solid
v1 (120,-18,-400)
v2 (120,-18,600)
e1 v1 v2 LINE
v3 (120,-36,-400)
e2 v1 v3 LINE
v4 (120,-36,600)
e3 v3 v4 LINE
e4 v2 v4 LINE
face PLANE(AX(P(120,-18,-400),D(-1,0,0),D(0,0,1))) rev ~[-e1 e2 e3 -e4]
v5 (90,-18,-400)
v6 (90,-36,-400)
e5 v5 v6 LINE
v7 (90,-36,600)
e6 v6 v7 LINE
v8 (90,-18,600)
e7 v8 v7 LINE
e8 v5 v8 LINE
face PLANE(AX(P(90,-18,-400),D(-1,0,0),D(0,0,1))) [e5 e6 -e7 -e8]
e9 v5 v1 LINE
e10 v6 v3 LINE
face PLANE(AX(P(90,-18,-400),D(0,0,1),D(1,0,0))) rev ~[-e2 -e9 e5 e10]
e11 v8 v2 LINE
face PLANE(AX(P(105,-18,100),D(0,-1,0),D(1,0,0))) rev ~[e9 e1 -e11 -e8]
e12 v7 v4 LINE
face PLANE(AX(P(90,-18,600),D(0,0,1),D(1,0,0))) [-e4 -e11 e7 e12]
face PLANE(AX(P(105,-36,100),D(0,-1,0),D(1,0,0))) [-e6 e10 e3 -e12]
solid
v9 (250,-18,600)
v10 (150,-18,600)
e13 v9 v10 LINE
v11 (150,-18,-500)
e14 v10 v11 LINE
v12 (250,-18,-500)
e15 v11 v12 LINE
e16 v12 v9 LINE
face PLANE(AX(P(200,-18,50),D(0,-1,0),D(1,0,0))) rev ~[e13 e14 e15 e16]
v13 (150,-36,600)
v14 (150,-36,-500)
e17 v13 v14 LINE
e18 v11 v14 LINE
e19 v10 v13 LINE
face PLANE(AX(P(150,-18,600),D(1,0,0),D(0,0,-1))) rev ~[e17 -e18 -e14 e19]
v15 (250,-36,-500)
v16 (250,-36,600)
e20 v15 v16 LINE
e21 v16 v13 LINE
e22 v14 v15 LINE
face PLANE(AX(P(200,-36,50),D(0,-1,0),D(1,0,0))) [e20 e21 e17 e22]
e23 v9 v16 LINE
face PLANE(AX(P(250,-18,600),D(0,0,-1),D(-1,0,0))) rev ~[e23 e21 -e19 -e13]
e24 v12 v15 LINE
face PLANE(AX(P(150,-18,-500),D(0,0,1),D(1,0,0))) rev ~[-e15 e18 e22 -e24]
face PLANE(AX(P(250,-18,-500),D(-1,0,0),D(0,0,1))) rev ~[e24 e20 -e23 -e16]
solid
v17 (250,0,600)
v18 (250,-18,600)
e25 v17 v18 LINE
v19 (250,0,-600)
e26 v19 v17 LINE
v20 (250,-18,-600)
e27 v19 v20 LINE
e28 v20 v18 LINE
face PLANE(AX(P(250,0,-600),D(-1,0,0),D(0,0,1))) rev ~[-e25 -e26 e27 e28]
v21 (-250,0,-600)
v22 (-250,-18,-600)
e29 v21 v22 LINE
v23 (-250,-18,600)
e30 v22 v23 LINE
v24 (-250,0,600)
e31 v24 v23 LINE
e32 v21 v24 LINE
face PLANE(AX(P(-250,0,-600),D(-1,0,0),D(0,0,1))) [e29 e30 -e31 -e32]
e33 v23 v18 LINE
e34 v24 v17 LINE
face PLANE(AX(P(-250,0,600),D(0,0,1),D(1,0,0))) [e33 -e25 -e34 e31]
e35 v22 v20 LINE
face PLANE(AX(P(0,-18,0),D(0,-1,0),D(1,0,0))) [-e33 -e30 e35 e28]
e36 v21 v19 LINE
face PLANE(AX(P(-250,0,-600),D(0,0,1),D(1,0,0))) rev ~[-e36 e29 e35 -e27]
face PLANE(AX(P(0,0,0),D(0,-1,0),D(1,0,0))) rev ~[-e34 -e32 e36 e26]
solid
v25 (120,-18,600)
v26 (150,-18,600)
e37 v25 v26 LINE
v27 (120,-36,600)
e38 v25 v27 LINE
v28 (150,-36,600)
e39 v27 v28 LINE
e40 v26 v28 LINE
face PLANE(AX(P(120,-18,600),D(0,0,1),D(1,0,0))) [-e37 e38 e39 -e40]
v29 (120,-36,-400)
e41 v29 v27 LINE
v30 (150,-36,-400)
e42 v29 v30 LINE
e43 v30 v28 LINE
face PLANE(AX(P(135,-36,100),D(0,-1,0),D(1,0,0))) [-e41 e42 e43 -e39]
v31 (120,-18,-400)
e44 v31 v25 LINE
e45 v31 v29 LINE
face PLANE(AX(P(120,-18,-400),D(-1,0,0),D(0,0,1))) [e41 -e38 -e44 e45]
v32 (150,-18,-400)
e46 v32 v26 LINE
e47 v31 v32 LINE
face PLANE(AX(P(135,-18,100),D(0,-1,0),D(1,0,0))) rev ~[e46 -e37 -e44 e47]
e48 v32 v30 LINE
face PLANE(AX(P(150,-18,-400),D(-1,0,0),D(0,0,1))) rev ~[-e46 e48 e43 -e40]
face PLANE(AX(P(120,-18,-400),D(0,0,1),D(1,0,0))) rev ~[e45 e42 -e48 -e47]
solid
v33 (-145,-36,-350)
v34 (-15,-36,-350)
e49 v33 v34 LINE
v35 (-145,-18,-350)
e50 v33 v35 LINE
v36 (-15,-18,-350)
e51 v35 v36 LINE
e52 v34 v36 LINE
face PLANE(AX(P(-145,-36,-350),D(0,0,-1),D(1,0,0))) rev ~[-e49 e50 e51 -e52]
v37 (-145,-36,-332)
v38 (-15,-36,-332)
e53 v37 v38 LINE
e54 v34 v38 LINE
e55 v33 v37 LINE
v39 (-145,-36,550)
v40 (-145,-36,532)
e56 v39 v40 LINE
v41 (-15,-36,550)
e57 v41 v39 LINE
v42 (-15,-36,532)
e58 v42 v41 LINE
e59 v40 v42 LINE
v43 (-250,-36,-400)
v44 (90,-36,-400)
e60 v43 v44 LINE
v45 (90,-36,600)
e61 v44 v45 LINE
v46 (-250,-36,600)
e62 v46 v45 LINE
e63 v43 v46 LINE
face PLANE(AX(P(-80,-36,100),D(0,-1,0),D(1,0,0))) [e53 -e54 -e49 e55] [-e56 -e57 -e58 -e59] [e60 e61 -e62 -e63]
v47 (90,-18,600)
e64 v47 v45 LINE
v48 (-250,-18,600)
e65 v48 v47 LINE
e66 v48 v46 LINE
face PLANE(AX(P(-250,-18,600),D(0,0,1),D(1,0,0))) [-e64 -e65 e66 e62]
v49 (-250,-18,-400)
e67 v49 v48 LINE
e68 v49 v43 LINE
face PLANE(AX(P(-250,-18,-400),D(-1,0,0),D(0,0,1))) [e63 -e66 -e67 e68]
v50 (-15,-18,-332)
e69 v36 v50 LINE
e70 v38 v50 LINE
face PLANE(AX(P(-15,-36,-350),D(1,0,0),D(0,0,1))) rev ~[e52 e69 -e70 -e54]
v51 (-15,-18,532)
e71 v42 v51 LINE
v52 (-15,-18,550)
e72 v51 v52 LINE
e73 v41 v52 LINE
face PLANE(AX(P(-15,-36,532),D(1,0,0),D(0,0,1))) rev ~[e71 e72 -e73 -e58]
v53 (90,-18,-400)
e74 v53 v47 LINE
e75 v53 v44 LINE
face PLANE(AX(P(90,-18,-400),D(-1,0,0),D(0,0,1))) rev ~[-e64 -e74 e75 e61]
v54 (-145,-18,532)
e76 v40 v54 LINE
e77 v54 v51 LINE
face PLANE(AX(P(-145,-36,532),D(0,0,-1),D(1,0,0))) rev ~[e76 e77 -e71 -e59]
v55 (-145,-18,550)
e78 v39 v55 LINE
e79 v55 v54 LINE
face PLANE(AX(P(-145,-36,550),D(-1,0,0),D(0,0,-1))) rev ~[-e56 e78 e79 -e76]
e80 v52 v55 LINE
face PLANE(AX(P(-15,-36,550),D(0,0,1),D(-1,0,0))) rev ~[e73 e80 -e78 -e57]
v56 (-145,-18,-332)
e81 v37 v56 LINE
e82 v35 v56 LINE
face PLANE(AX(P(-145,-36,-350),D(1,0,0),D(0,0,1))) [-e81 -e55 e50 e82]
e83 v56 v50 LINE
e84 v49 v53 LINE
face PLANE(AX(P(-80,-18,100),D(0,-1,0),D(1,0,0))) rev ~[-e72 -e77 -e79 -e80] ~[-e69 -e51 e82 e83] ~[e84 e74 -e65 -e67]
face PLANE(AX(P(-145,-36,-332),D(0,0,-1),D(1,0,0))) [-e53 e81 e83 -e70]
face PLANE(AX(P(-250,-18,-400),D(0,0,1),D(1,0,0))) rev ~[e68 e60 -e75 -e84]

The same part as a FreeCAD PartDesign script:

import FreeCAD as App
import Part
import Sketcher

V = App.Vector
Q = App.Units.Quantity

doc = App.newDocument("Part")
body = doc.addObject("PartDesign::Body", "Body")

# Sketch on XZ plane
sketch1 = body.newObject("Sketcher::SketchObject", "Sketch")
sketch1.AttachmentSupport = (doc.getObject("XZ_Plane"), [""])
sketch1.MapMode = "FlatFace"
sketch1.addGeometry([
    Part.LineSegment(V(-250, 600, 0), V(-250, -600, 0)),
    Part.LineSegment(V(-250, -600, 0), V(250, -600, 0)),
    Part.LineSegment(V(250, -600, 0), V(250, 600, 0)),
    Part.LineSegment(V(250, 600, 0), V(-250, 600, 0)),
], False)
sketch1.addConstraint([
    Sketcher.Constraint("Coincident", 0, 2, 1, 1),
    Sketcher.Constraint("Coincident", 1, 2, 2, 1),
    Sketcher.Constraint("Coincident", 2, 2, 3, 1),
    Sketcher.Constraint("Coincident", 3, 2, 0, 1),
    Sketcher.Constraint("Vertical", 0),
    Sketcher.Constraint("Horizontal", 1),
    Sketcher.Constraint("Vertical", 2),
    Sketcher.Constraint("Horizontal", 3),
    Sketcher.Constraint("Symmetric", 0, 2, 2, 2, -1, 1),
    Sketcher.Constraint("DistanceX", 1, 1, 1, 2, Q("500 mm")),
    Sketcher.Constraint("DistanceY", 0, 2, 0, 1, Q("1200 mm")),
])
pad1 = body.newObject("PartDesign::Pad", "Pad")
pad1.Profile = sketch1
pad1.Length = 18
body2 = doc.addObject("PartDesign::Body", "Body001")

# Sketch on XZ plane
sketch2 = body2.newObject("Sketcher::SketchObject", "Sketch001")
sketch2.AttachmentSupport = (doc.getObject("XZ_Plane001"), [""])
sketch2.MapMode = "FlatFace"
sketch2.AttachmentOffset = App.Placement(V(0, 0, 18), App.Rotation())
sketch2.addGeometry([
    Part.LineSegment(V(-250, 600, 0), V(-250, -400, 0)),
    Part.LineSegment(V(-250, -400, 0), V(90, -400, 0)),
    Part.LineSegment(V(90, -400, 0), V(90, 600, 0)),
    Part.LineSegment(V(90, 600, 0), V(-250, 600, 0)),
], False)
sketch2.addConstraint([
    Sketcher.Constraint("Coincident", 0, 2, 1, 1),
    Sketcher.Constraint("Coincident", 1, 2, 2, 1),
    Sketcher.Constraint("Coincident", 2, 2, 3, 1),
    Sketcher.Constraint("Coincident", 3, 2, 0, 1),
    Sketcher.Constraint("Vertical", 0),
    Sketcher.Constraint("Horizontal", 1),
    Sketcher.Constraint("Vertical", 2),
    Sketcher.Constraint("Horizontal", 3),
    Sketcher.Constraint("DistanceX", 1, 1, 1, 2, Q("340 mm")),
    Sketcher.Constraint("DistanceY", 0, 2, 0, 1, Q("1000 mm")),
    Sketcher.Constraint("DistanceX", 0, 2, -1, 1, Q("250 mm")),
    Sketcher.Constraint("DistanceY", 0, 2, -1, 1, Q("400 mm")),
])
pad2 = body2.newObject("PartDesign::Pad", "Pad001")
pad2.Profile = sketch2
pad2.Length = 18

# Sketch on XZ plane
sketch3 = body2.newObject("Sketcher::SketchObject", "Sketch002")
sketch3.AttachmentSupport = (doc.getObject("XZ_Plane001"), [""])
sketch3.MapMode = "FlatFace"
sketch3.AttachmentOffset = App.Placement(V(0, 0, 36), App.Rotation())
sketch3.addGeometry([
    Part.LineSegment(V(-145, 550, 0), V(-145, 532, 0)),  # 0
    Part.LineSegment(V(-145, 532, 0), V(-15, 532, 0)),  # 1
    Part.LineSegment(V(-15, 532, 0), V(-15, 550, 0)),  # 2
    Part.LineSegment(V(-15, 550, 0), V(-145, 550, 0)),  # 3
    Part.LineSegment(V(-145, -332, 0), V(-145, -350, 0)),  # 4
    Part.LineSegment(V(-145, -350, 0), V(-15, -350, 0)),  # 5
    Part.LineSegment(V(-15, -350, 0), V(-15, -332, 0)),  # 6
    Part.LineSegment(V(-15, -332, 0), V(-145, -332, 0)),  # 7
], False)
sketch3.addConstraint([
    Sketcher.Constraint("Coincident", 0, 2, 1, 1),
    Sketcher.Constraint("Coincident", 1, 2, 2, 1),
    Sketcher.Constraint("Coincident", 2, 2, 3, 1),
    Sketcher.Constraint("Coincident", 3, 2, 0, 1),
    Sketcher.Constraint("Coincident", 4, 2, 5, 1),
    Sketcher.Constraint("Coincident", 5, 2, 6, 1),
    Sketcher.Constraint("Coincident", 6, 2, 7, 1),
    Sketcher.Constraint("Coincident", 7, 2, 4, 1),
    Sketcher.Constraint("Vertical", 0),
    Sketcher.Constraint("Horizontal", 1),
    Sketcher.Constraint("Vertical", 2),
    Sketcher.Constraint("Horizontal", 3),
    Sketcher.Constraint("Vertical", 4),
    Sketcher.Constraint("Horizontal", 5),
    Sketcher.Constraint("Vertical", 6),
    Sketcher.Constraint("Horizontal", 7),
    Sketcher.Constraint("Vertical", 3, 2, 4, 2),
    Sketcher.Constraint("Vertical", 2, 2, 5, 2),
    Sketcher.Constraint("Equal", 2, 4),
    Sketcher.Constraint("DistanceX", 1, 1, 1, 2, Q("130 mm")),
    Sketcher.Constraint("DistanceY", 0, 2, 0, 1, Q("18 mm")),
    Sketcher.Constraint("DistanceX", 0, 2, -1, 1, Q("145 mm")),
    Sketcher.Constraint("DistanceY", -1, 1, 0, 2, Q("532 mm")),
    Sketcher.Constraint("DistanceY", 4, 2, -1, 1, Q("350 mm")),
])
pocket1 = body2.newObject("PartDesign::Pocket", "Pocket")
pocket1.Profile = sketch3
pocket1.Type = "ThroughAll"
body3 = doc.addObject("PartDesign::Body", "Body002")

# Sketch on XZ plane
sketch4 = body3.newObject("Sketcher::SketchObject", "Sketch003")
sketch4.AttachmentSupport = (doc.getObject("XZ_Plane002"), [""])
sketch4.MapMode = "FlatFace"
sketch4.AttachmentOffset = App.Placement(V(0, 0, 18), App.Rotation())
sketch4.addGeometry([
    Part.LineSegment(V(90, 600, 0), V(90, -400, 0)),
    Part.LineSegment(V(90, -400, 0), V(120, -400, 0)),
    Part.LineSegment(V(120, -400, 0), V(120, 600, 0)),
    Part.LineSegment(V(120, 600, 0), V(90, 600, 0)),
], False)
sketch4.addConstraint([
    Sketcher.Constraint("Coincident", 0, 2, 1, 1),
    Sketcher.Constraint("Coincident", 1, 2, 2, 1),
    Sketcher.Constraint("Coincident", 2, 2, 3, 1),
    Sketcher.Constraint("Coincident", 3, 2, 0, 1),
    Sketcher.Constraint("Vertical", 0),
    Sketcher.Constraint("Horizontal", 1),
    Sketcher.Constraint("Vertical", 2),
    Sketcher.Constraint("Horizontal", 3),
    Sketcher.Constraint("DistanceX", 1, 1, 1, 2, Q("30 mm")),
    Sketcher.Constraint("DistanceY", 0, 2, 0, 1, Q("1000 mm")),
    Sketcher.Constraint("DistanceX", -1, 1, 0, 2, Q("90 mm")),
    Sketcher.Constraint("DistanceY", 0, 2, -1, 1, Q("400 mm")),
])
pad3 = body3.newObject("PartDesign::Pad", "Pad002")
pad3.Profile = sketch4
pad3.Length = 18
body4 = doc.addObject("PartDesign::Body", "Body003")

# Sketch on XZ plane
sketch5 = body4.newObject("Sketcher::SketchObject", "Sketch004")
sketch5.AttachmentSupport = (doc.getObject("XZ_Plane003"), [""])
sketch5.MapMode = "FlatFace"
sketch5.AttachmentOffset = App.Placement(V(0, 0, 18), App.Rotation())
sketch5.addGeometry([
    Part.LineSegment(V(120, 600, 0), V(120, -400, 0)),
    Part.LineSegment(V(120, -400, 0), V(150, -400, 0)),
    Part.LineSegment(V(150, -400, 0), V(150, 600, 0)),
    Part.LineSegment(V(150, 600, 0), V(120, 600, 0)),
], False)
sketch5.addConstraint([
    Sketcher.Constraint("Coincident", 0, 2, 1, 1),
    Sketcher.Constraint("Coincident", 1, 2, 2, 1),
    Sketcher.Constraint("Coincident", 2, 2, 3, 1),
    Sketcher.Constraint("Coincident", 3, 2, 0, 1),
    Sketcher.Constraint("Vertical", 0),
    Sketcher.Constraint("Horizontal", 1),
    Sketcher.Constraint("Vertical", 2),
    Sketcher.Constraint("Horizontal", 3),
    Sketcher.Constraint("DistanceX", 1, 1, 1, 2, Q("30 mm")),
    Sketcher.Constraint("DistanceY", 0, 2, 0, 1, Q("1000 mm")),
    Sketcher.Constraint("DistanceX", -1, 1, 0, 2, Q("120 mm")),
    Sketcher.Constraint("DistanceY", 0, 2, -1, 1, Q("400 mm")),
])
pad4 = body4.newObject("PartDesign::Pad", "Pad003")
pad4.Profile = sketch5
pad4.Length = 18
body5 = doc.addObject("PartDesign::Body", "Body004")

# Sketch on XZ plane
sketch6 = body5.newObject("Sketcher::SketchObject", "Sketch005")
sketch6.AttachmentSupport = (doc.getObject("XZ_Plane004"), [""])
sketch6.MapMode = "FlatFace"
sketch6.AttachmentOffset = App.Placement(V(0, 0, 18), App.Rotation())
sketch6.addGeometry([
    Part.LineSegment(V(250, 600, 0), V(150, 600, 0)),
    Part.LineSegment(V(150, 600, 0), V(150, -500, 0)),
    Part.LineSegment(V(150, -500, 0), V(250, -500, 0)),
    Part.LineSegment(V(250, -500, 0), V(250, 600, 0)),
], False)
sketch6.addConstraint([
    Sketcher.Constraint("Coincident", 0, 2, 1, 1),
    Sketcher.Constraint("Coincident", 1, 2, 2, 1),
    Sketcher.Constraint("Coincident", 2, 2, 3, 1),
    Sketcher.Constraint("Coincident", 3, 2, 0, 1),
    Sketcher.Constraint("Horizontal", 0),
    Sketcher.Constraint("Vertical", 1),
    Sketcher.Constraint("Horizontal", 2),
    Sketcher.Constraint("Vertical", 3),
    Sketcher.Constraint("DistanceX", 0, 2, 0, 1, Q("100 mm")),
    Sketcher.Constraint("DistanceY", 1, 2, 1, 1, Q("1100 mm")),
    Sketcher.Constraint("DistanceX", -1, 1, 0, 2, Q("150 mm")),
    Sketcher.Constraint("DistanceY", -1, 1, 0, 2, Q("600 mm")),
])
pad5 = body5.newObject("PartDesign::Pad", "Pad004")
pad5.Profile = sketch6
pad5.Length = 18

doc.recompute()
